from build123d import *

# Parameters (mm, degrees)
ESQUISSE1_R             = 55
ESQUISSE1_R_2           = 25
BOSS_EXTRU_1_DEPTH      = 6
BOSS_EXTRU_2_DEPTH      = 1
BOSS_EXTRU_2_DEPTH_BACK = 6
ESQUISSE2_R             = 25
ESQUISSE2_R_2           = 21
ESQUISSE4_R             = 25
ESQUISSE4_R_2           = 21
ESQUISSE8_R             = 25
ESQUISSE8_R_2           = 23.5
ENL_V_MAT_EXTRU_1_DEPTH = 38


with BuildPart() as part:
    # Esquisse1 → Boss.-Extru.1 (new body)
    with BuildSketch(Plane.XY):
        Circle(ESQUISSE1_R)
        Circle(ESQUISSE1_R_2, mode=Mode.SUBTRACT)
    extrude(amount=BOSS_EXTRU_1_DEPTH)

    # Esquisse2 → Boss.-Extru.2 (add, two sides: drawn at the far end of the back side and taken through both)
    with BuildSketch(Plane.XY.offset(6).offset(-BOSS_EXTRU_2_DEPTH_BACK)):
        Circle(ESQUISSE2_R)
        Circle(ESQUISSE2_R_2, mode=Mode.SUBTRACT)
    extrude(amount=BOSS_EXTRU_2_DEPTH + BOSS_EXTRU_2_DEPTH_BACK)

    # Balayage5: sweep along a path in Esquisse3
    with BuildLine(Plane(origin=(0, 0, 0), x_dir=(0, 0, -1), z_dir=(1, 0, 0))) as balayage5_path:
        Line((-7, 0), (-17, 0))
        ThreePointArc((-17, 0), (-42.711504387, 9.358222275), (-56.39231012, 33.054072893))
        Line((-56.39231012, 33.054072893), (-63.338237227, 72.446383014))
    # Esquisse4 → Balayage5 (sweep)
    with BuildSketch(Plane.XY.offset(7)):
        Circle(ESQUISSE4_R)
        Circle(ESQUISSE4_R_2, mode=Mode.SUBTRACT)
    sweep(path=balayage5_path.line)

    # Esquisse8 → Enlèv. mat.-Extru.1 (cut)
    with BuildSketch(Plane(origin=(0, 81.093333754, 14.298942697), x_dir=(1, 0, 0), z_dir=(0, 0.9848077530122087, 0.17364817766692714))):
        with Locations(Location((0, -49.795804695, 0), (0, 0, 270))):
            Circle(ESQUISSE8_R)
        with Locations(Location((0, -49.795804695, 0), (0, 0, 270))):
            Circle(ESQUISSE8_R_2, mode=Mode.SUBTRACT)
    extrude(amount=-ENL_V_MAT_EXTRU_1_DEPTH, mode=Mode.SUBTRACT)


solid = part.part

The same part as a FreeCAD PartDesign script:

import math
import FreeCAD as App
import Part
import Sketcher
Q = App.Units.Quantity

doc = App.newDocument("Part")
body = doc.addObject("PartDesign::Body", "Body")

# Sketch on XY plane
sketch1 = body.newObject("Sketcher::SketchObject", "Sketch")
sketch1.AttachmentSupport = (doc.getObject("XY_Plane"), [""])
sketch1.MapMode = "FlatFace"
sketch1.addGeometry([
    Part.Circle(App.Vector(0, 0, 0), App.Vector(0, 0, 1), 55),
    Part.Circle(App.Vector(0, 0, 0), App.Vector(0, 0, 1), 25),
], False)
sketch1.addConstraint([
    Sketcher.Constraint("Coincident", 0, 3, -1, 1),
    Sketcher.Constraint("Coincident", 1, 3, -1, 1),
    Sketcher.Constraint("Diameter", 0, 110.0),
    Sketcher.Constraint("Diameter", 1, 50.0),
])
pad1 = body.newObject("PartDesign::Pad", "Pad")
pad1.Profile = sketch1
pad1.Length = 6

# Sketch on XY plane
sketch2 = body.newObject("Sketcher::SketchObject", "Sketch001")
sketch2.AttachmentSupport = (doc.getObject("XY_Plane"), [""])
sketch2.MapMode = "FlatFace"
sketch2.AttachmentOffset = App.Placement(App.Vector(0, 0, 6), App.Rotation())
sketch2.addGeometry([
    Part.Circle(App.Vector(0, 0, 0), App.Vector(0, 0, 1), 25),
    Part.Circle(App.Vector(0, 0, 0), App.Vector(0, 0, 1), 21),
], False)
sketch2.addConstraint([
    Sketcher.Constraint("Coincident", 0, 3, -1, 1),
    Sketcher.Constraint("Coincident", 1, 3, -1, 1),
    Sketcher.Constraint("Diameter", 0, 50.0),
    Sketcher.Constraint("Diameter", 1, 42.0),
])
pad2 = body.newObject("PartDesign::Pad", "Pad001")
pad2.Profile = sketch2
pad2.Type = "TwoLengths"
pad2.Length = 1
pad2.Length2 = 6

# Sketch on XY plane
sketch3 = body.newObject("Sketcher::SketchObject", "Sketch002")
sketch3.AttachmentSupport = (doc.getObject("XY_Plane"), [""])
sketch3.MapMode = "FlatFace"
sketch3.AttachmentOffset = App.Placement(App.Vector(0, 0, 7), App.Rotation())
sketch3.addGeometry([
    Part.Circle(App.Vector(0, 0, 0), App.Vector(0, 0, 1), 25),
    Part.Circle(App.Vector(0, 0, 0), App.Vector(0, 0, 1), 21),
], False)
sketch3.addConstraint([
    Sketcher.Constraint("Coincident", 0, 3, -1, 1),
    Sketcher.Constraint("Coincident", 1, 3, -1, 1),
    Sketcher.Constraint("Diameter", 0, 50.0),
    Sketcher.Constraint("Diameter", 1, 42.0),
])

# Sketch on YZ plane
sketch4 = body.newObject("Sketcher::SketchObject", "Sketch003")
sketch4.AttachmentSupport = (doc.getObject("YZ_Plane"), [""])
sketch4.MapMode = "FlatFace"
sketch4.addGeometry([
    Part.LineSegment(App.Vector(0, 7, 0), App.Vector(0, 17, 0)),
    Part.ArcOfCircle(Part.Circle(App.Vector(40, 17, 0), App.Vector(0, 0, 1), 40), math.radians(100), math.radians(180)),
    Part.LineSegment(App.Vector(33, 56, 0), App.Vector(72, 63, 0)),
], False)
sketch4.addConstraint([
    Sketcher.Constraint("Tangent", 0, 2, 1, 2),
    Sketcher.Constraint("Tangent", 1, 1, 2, 1),
    Sketcher.Constraint("Vertical", 0),
    Sketcher.Constraint("PointOnObject", 0, 1, -2),
    Sketcher.Constraint("Radius", 1, 40.0),
    Sketcher.Constraint("DistanceY", 0, 1, 0, 2, 10.0),
    Sketcher.Constraint("Angle", 2, Q("10 deg")),
    Sketcher.Constraint("Distance", 2, 40.0),
    Sketcher.Constraint("DistanceY", -1, 1, 1, 3, 17.0),
])
doc.recompute()

additivepipe = body.newObject("PartDesign::AdditivePipe", "AdditivePipe")
additivepipe.Profile = sketch3
additivepipe.Spine = (sketch4, ["Edge1", "Edge2", "Edge3"])

# Sketch on an angled plane
sketch5 = body.newObject("Sketcher::SketchObject", "Sketch004")
sketch5.Placement = App.Placement(App.Vector(0, 81.093334, 14.298943), App.Rotation(App.Vector(1, 0, 0), App.Vector(0, 0.173648178, -0.984807753), App.Vector(0, 0.984807753, 0.173648178), "ZXY"))
sketch5.addGeometry([
    Part.Circle(App.Vector(0, -50, 0), App.Vector(0, 0, 1), 25),
    Part.Circle(App.Vector(0, -50, 0), App.Vector(0, 0, 1), 24),
], False)
sketch5.addConstraint([
    Sketcher.Constraint("Coincident", 1, 3, 0, 3),
    Sketcher.Constraint("PointOnObject", 0, 3, -2),
    Sketcher.Constraint("Diameter", 0, 50.0),
    Sketcher.Constraint("Diameter", 1, 47.0),
    Sketcher.Constraint("DistanceY", 0, 3, -1, 1, 49.795805),
])
pocket1 = body.newObject("PartDesign::Pocket", "Pocket")
pocket1.Profile = sketch5
pocket1.Length = 38

doc.recompute()
